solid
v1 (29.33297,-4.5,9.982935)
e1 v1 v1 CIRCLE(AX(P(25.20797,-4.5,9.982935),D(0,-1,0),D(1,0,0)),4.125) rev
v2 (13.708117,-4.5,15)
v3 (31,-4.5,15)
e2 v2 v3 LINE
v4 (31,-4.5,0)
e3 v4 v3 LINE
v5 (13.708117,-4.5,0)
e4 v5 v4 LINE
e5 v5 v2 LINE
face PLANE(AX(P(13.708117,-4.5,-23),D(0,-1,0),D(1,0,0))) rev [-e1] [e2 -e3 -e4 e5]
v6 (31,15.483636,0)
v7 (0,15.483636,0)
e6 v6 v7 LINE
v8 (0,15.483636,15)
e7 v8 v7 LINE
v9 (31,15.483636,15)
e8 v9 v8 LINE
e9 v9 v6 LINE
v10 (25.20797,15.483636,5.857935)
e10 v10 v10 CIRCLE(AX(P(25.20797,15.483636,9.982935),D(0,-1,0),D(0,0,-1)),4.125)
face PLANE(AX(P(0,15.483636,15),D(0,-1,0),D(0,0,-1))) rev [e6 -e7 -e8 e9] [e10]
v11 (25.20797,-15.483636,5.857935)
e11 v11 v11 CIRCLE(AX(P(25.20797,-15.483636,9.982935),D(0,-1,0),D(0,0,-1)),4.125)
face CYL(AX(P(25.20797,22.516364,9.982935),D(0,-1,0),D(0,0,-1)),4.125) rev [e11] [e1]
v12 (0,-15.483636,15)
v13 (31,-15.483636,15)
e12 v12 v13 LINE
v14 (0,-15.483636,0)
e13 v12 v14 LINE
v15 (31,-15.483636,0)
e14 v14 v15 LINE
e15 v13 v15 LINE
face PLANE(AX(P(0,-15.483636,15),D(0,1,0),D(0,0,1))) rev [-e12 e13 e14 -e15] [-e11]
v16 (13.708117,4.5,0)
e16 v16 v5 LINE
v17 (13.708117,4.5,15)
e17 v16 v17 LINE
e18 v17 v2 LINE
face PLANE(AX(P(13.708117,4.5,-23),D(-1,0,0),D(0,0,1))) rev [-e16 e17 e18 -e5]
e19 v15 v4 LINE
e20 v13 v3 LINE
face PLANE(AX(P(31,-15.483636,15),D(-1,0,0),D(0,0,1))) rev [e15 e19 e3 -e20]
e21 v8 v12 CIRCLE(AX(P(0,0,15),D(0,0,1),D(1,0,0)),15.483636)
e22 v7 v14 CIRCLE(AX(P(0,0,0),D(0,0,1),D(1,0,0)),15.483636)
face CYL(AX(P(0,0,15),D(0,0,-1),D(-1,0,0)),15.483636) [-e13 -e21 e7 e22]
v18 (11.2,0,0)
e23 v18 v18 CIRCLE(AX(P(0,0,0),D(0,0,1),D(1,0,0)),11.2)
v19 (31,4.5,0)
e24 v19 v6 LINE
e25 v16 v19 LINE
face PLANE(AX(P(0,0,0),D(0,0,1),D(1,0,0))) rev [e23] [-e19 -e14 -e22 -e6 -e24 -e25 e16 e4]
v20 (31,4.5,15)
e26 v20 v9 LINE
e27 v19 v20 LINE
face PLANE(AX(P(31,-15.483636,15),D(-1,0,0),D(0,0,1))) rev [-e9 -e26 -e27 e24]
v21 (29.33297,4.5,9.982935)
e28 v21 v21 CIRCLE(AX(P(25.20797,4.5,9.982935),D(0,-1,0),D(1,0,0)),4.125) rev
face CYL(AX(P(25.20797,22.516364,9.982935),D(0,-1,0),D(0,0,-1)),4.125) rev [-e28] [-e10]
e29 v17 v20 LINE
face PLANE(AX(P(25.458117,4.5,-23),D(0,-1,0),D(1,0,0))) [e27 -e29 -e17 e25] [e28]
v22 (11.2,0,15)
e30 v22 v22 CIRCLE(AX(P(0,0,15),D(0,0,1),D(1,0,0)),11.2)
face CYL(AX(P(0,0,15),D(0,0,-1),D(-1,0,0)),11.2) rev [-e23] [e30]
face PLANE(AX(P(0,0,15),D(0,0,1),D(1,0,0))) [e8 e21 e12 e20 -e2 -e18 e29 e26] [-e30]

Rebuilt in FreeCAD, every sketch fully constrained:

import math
import FreeCAD as App
import Part
import Sketcher

V = App.Vector
Q = App.Units.Quantity

doc = App.newDocument("Part")
body = doc.addObject("PartDesign::Body", "Body")

# Sketch on XY plane
sketch1 = doc.addObject("Sketcher::SketchObject", "Sketch")
body.addObject(sketch1)
sketch1.AttachmentSupport = (doc.XY_Plane, [""])
sketch1.MapMode = "FlatFace"
sketch1.addGeometry([
    Part.LineSegment(V(31, 15, 0), V(0, 15, 0)),  # 0
    Part.ArcOfCircle(Part.Circle(V(0, 0, 0), V(0, 0, 1), 15), math.radians(90), math.radians(270)),  # 1
    Part.LineSegment(V(0, -15, 0), V(31, -15, 0)),  # 2
    Part.LineSegment(V(31, -15, 0), V(31, 15, 0)),  # 3
    Part.Circle(V(0, 0, 0), V(0, 0, 1), 11),  # 4
], False)
sketch1.addConstraint([
    Sketcher.Constraint("Tangent", 0, 2, 1, 1),
    Sketcher.Constraint("Tangent", 1, 2, 2, 1),
    Sketcher.Constraint("Coincident", 2, 2, 3, 1),
    Sketcher.Constraint("Coincident", 3, 2, 0, 1),
    Sketcher.Constraint("Horizontal", 0),
    Sketcher.Constraint("Horizontal", 2),
    Sketcher.Constraint("Vertical", 3),
    Sketcher.Constraint("Coincident", 1, 3, -1, 1),
    Sketcher.Constraint("Coincident", 4, 3, -1, 1),
    Sketcher.Constraint("Diameter", 4, Q("22.4 mm")),
    Sketcher.Constraint("DistanceX", 0, 2, 0, 1, Q("31 mm")),
    Sketcher.Constraint("Radius", 1, Q("15.483636 mm")),
])
pad1 = doc.addObject("PartDesign::Pad", "Pad")
body.addObject(pad1)
pad1.Profile = sketch1
pad1.Length = 15

# Sketch on XZ plane
sketch2 = doc.addObject("Sketcher::SketchObject", "Sketch001")
body.addObject(sketch2)
sketch2.AttachmentSupport = (doc.XZ_Plane, [""])
sketch2.MapMode = "FlatFace"
sketch2.AttachmentOffset = App.Placement(V(0, 0, 15.483636), App.Rotation())
sketch2.addGeometry(Part.Circle(V(25.2, 10, 0), V(0, 0, 1), 4.1), False)
sketch2.addConstraint([
    Sketcher.Constraint("Diameter", 0, Q("8.25 mm")),
    Sketcher.Constraint("DistanceX", -1, 1, 0, 3, Q("25.20797 mm")),
    Sketcher.Constraint("DistanceY", -1, 1, 0, 3, Q("9.982935 mm")),
])
pocket1 = doc.addObject("PartDesign::Pocket", "Pocket")
body.addObject(pocket1)
pocket1.Profile = sketch2
pocket1.Length = 38

# Sketch on XY plane
sketch3 = doc.addObject("Sketcher::SketchObject", "Sketch002")
body.addObject(sketch3)
sketch3.AttachmentSupport = (doc.XY_Plane, [""])
sketch3.MapMode = "FlatFace"
sketch3.AttachmentOffset = App.Placement(V(0, 0, 15), App.Rotation())
sketch3.addGeometry([
    Part.LineSegment(V(14, 4, 0), V(14, -4, 0)),
    Part.LineSegment(V(14, -4, 0), V(31, -4, 0)),
    Part.LineSegment(V(31, -4, 0), V(31, 4, 0)),
    Part.LineSegment(V(31, 4, 0), V(14, 4, 0)),
], False)
sketch3.addConstraint([
    Sketcher.Constraint("Coincident", 0, 2, 1, 1),
    Sketcher.Constraint("Coincident", 1, 2, 2, 1),
    Sketcher.Constraint("Coincident", 2, 2, 3, 1),
    Sketcher.Constraint("Coincident", 3, 2, 0, 1),
    Sketcher.Constraint("Vertical", 0),
    Sketcher.Constraint("Horizontal", 1),
    Sketcher.Constraint("Vertical", 2),
    Sketcher.Constraint("Horizontal", 3),
    Sketcher.Constraint("DistanceY", 0, 2, 0, 1, Q("9 mm")),
    Sketcher.Constraint("DistanceX", -1, 1, 1, 2, Q("31 mm")),
    Sketcher.Constraint("DistanceY", 0, 2, -1, 1, Q("4.5 mm")),
    Sketcher.Constraint("DistanceX", 1, 1, 1, 2, Q("17.291883 mm")),
])
pocket2 = doc.addObject("PartDesign::Pocket", "Pocket001")
body.addObject(pocket2)
pocket2.Profile = sketch3
pocket2.Length = 38

doc.recompute()
